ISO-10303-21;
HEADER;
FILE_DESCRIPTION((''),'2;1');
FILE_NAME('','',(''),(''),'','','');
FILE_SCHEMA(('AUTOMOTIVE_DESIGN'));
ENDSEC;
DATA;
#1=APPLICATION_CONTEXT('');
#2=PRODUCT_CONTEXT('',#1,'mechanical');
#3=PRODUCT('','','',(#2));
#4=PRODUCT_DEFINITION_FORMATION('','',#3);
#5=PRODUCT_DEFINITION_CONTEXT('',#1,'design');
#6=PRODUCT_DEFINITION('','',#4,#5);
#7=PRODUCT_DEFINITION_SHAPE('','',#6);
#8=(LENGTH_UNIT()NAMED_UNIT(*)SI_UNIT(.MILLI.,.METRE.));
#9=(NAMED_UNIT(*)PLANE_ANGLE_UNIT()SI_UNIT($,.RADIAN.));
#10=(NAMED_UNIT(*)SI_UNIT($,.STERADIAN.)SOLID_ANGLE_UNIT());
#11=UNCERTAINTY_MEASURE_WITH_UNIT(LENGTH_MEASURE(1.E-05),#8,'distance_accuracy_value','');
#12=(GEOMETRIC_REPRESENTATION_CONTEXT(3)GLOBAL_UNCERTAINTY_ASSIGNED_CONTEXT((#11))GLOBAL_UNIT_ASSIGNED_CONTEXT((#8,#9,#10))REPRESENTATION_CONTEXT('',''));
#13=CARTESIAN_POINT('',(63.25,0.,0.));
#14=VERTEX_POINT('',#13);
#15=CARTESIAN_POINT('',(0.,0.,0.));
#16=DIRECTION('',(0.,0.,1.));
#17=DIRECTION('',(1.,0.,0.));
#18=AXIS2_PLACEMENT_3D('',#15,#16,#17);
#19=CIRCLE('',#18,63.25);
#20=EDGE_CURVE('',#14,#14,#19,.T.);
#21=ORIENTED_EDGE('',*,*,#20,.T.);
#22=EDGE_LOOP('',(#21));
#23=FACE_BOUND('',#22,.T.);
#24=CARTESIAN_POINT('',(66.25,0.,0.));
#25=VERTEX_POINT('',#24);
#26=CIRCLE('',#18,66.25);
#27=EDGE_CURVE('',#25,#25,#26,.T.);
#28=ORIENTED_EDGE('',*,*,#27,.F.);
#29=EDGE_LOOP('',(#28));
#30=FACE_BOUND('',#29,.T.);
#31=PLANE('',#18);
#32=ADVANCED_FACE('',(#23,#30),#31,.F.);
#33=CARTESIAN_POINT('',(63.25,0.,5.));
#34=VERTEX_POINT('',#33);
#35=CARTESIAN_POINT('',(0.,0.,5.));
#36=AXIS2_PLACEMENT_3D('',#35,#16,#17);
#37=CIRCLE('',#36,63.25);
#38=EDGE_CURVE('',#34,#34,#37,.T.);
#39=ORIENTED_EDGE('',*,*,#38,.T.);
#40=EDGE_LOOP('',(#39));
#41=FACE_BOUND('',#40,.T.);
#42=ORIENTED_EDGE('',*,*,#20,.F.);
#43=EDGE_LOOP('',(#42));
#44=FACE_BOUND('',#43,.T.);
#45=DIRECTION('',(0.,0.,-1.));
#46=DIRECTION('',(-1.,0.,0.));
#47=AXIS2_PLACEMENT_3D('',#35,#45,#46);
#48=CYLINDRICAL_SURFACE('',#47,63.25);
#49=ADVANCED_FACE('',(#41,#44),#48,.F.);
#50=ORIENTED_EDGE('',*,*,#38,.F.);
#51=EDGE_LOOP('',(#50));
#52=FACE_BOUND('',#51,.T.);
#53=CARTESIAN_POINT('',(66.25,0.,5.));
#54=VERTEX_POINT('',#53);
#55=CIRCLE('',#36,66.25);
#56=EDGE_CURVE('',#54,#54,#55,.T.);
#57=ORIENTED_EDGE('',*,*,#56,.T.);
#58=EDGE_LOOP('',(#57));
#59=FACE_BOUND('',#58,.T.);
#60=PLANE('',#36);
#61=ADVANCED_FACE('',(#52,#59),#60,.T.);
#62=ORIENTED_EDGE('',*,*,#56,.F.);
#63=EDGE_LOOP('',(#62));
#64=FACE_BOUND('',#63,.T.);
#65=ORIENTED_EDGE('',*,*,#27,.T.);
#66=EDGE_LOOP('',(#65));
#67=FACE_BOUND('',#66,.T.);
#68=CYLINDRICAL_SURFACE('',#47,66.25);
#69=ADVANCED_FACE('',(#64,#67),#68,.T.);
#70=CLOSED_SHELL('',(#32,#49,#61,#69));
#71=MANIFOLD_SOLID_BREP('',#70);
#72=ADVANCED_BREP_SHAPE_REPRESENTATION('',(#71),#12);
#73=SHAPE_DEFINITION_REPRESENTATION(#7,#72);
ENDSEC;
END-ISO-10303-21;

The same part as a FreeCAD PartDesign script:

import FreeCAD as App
import Part
import Sketcher

doc = App.newDocument("Part")
params = doc.addObject("Spreadsheet::Sheet", "Params")
for row, (alias, value) in enumerate([
    ("sketch1_diameter", "132.5 mm"),
    ("sketch1_diameter2", "126.5 mm"),
    ("pad1_length", "5 mm"),
], start=1):
    params.set(f"A{row}", alias)
    params.set(f"B{row}", "=" + value)
    params.setAlias(f"B{row}", alias)

body = doc.addObject("PartDesign::Body", "Body")

# Sketch on XY plane
sketch1 = doc.addObject("Sketcher::SketchObject", "Sketch")
body.addObject(sketch1)
sketch1.AttachmentSupport = (doc.XY_Plane, [""])
sketch1.MapMode = "FlatFace"
sketch1.addGeometry([
    Part.Circle(App.Vector(0, 0, 0), App.Vector(0, 0, 1), 66.25),
    Part.Circle(App.Vector(0, 0, 0), App.Vector(0, 0, 1), 63.25),
], False)
sketch1.addConstraint([
    Sketcher.Constraint("Coincident", 0, 3, -1, 1),
    Sketcher.Constraint("Coincident", 1, 3, -1, 1),
    Sketcher.Constraint("Diameter", 0, 132.5),
    Sketcher.Constraint("Diameter", 1, 126.5),
])
sketch1.setExpression("Constraints[2]", "Params.sketch1_diameter")
sketch1.setExpression("Constraints[3]", "Params.sketch1_diameter2")
pad1 = doc.addObject("PartDesign::Pad", "Pad")
body.addObject(pad1)
pad1.Profile = sketch1
pad1.setExpression("Length", "Params.pad1_length")

doc.recompute()
